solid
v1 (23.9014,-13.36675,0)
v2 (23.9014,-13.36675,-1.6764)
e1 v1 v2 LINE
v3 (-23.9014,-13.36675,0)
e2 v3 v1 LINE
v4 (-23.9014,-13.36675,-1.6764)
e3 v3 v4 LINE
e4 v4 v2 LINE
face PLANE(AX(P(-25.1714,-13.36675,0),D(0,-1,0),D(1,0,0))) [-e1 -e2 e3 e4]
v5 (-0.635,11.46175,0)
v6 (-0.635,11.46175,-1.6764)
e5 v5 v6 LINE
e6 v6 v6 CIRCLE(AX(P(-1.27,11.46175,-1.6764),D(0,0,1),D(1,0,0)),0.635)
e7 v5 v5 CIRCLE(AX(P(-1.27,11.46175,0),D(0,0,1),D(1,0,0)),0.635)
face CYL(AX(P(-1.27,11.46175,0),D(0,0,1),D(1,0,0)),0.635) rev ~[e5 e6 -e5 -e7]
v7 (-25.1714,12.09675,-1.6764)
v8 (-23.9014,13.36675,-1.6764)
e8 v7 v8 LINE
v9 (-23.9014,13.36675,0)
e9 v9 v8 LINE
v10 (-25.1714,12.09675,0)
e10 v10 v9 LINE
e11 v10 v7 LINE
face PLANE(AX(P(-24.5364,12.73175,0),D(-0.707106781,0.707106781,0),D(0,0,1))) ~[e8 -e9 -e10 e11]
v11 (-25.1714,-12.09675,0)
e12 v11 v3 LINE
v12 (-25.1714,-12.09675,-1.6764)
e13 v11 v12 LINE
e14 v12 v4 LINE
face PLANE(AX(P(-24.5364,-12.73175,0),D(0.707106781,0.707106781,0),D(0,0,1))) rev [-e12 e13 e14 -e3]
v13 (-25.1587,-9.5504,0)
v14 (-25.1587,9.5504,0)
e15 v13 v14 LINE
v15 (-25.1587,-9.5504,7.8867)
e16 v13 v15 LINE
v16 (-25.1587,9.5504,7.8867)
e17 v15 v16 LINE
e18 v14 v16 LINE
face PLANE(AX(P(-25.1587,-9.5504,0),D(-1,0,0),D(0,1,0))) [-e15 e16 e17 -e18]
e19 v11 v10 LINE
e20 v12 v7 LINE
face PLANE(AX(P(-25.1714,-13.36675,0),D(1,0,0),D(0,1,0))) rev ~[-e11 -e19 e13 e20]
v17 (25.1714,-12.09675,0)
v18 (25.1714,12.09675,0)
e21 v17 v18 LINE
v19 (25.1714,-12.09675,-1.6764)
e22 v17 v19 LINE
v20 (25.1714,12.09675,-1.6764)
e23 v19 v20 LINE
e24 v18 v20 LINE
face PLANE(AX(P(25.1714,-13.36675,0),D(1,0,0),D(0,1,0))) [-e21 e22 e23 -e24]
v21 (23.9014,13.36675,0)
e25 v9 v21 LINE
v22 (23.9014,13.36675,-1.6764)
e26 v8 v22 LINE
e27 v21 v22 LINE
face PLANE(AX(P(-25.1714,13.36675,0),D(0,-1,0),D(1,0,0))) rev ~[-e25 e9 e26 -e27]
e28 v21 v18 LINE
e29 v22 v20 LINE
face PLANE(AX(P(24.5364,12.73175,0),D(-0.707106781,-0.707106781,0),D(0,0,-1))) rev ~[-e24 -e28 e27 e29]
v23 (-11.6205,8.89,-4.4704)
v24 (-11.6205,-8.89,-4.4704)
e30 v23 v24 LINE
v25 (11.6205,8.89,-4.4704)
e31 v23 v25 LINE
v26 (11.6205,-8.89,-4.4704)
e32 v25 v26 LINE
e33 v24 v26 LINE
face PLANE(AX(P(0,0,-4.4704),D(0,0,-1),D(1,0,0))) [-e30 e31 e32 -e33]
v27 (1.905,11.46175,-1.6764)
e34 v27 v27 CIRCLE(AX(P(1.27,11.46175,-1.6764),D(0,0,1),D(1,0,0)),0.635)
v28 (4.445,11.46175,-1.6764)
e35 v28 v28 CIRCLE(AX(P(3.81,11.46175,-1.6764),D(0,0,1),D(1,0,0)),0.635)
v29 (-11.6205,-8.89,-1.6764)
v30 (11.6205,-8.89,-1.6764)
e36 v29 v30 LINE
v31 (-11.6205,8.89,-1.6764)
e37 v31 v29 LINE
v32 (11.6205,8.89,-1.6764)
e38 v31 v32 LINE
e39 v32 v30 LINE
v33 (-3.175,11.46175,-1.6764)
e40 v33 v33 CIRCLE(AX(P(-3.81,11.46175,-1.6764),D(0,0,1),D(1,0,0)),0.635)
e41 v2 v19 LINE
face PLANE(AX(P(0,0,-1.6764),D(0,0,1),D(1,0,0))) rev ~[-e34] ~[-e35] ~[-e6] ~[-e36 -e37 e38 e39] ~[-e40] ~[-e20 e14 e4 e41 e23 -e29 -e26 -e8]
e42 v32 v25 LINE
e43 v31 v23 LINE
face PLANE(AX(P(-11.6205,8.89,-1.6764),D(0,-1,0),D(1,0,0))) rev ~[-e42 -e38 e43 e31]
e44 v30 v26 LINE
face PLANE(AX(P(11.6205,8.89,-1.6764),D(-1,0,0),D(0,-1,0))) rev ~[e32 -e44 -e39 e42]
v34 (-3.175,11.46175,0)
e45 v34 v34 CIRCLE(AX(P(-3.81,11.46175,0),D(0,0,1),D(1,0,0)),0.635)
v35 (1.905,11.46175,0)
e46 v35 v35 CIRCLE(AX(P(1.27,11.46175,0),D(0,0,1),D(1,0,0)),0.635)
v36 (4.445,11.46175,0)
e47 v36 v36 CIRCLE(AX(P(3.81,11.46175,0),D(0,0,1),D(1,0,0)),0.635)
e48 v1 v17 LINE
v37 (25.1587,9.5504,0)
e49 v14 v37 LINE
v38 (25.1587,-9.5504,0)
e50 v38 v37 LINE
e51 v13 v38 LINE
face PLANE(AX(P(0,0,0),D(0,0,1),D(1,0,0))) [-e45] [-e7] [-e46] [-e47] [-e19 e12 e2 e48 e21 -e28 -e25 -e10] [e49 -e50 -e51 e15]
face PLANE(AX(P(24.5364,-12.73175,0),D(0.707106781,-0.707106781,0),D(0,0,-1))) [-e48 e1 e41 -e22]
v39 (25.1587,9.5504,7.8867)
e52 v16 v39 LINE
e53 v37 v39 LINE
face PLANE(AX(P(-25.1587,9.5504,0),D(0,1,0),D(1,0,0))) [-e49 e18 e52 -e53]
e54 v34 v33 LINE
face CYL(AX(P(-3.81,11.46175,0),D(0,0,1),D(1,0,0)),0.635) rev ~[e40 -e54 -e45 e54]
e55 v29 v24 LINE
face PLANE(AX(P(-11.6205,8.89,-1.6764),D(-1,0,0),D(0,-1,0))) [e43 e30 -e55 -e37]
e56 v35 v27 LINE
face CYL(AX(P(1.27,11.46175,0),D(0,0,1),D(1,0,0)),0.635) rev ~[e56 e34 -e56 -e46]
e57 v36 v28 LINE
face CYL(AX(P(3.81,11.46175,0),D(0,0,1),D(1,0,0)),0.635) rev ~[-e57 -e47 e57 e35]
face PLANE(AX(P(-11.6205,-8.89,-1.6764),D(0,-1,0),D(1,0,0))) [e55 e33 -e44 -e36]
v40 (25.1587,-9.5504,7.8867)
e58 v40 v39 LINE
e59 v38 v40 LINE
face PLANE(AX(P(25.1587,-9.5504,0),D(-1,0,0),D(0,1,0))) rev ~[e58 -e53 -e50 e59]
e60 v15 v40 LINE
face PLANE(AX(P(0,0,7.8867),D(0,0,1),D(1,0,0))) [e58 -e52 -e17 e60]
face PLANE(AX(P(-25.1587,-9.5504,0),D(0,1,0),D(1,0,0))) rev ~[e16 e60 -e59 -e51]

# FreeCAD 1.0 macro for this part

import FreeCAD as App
import Part
import Sketcher
Q = App.Units.Quantity


def edges_at(feature, points):
    """Names of the edges that pass closest to the given points."""
    edges = feature.Shape.Edges
    near = lambda p: min(range(len(edges)), key=lambda i: edges[i].distToShape(Part.Vertex(*p))[0])
    return sorted({f"Edge{near(p) + 1}" for p in points})


def add_polygon(sketch, points):
    """Adds a closed chain of lines whose ends are joined by coincident constraints."""
    first, n = sketch.GeometryCount, len(points)
    for a, b in zip(points, points[1:] + points[:1]):
        sketch.addGeometry(Part.LineSegment(App.Vector(*a, 0), App.Vector(*b, 0)), False)
    for i in range(n):
        sketch.addConstraint(Sketcher.Constraint("Coincident", first + i, 2, first + (i + 1) % n, 1))

doc = App.newDocument("Part")
body = doc.addObject("PartDesign::Body", "Body")

sketch1 = doc.addObject("Sketcher::SketchObject", "Sketch")
body.addObject(sketch1)
sketch1.AttachmentSupport = (doc.XY_Plane, [""])
sketch1.MapMode = "FlatFace"
add_polygon(sketch1, [(-25, 13), (-25, -13), (25, -13), (25, 13)])
sketch1.addConstraint(Sketcher.Constraint("Vertical", 0))
sketch1.addConstraint(Sketcher.Constraint("Horizontal", 1))
sketch1.addConstraint(Sketcher.Constraint("Vertical", 2))
sketch1.addConstraint(Sketcher.Constraint("Horizontal", 3))
sketch1.addConstraint(Sketcher.Constraint("Symmetric", 0, 2, 2, 2, -1, 1))
sketch1.addConstraint(Sketcher.Constraint("DistanceX", 1, 1, 1, 2, Q("1.982 in")))
sketch1.addConstraint(Sketcher.Constraint("DistanceY", 0, 2, 0, 1, Q("1.0525 in")))
pad1 = doc.addObject("PartDesign::Pad", "Pad")
body.addObject(pad1)
pad1.Profile = sketch1
pad1.Length = Q("0.066 in")
pad1.Reversed = True

sketch2 = doc.addObject("Sketcher::SketchObject", "Sketch001")
body.addObject(sketch2)
sketch2.AttachmentSupport = (doc.XY_Plane, [""])
sketch2.MapMode = "FlatFace"
add_polygon(sketch2, [(-25, 10), (-25, -10), (25, -10), (25, 10)])
sketch2.addConstraint(Sketcher.Constraint("Vertical", 0))
sketch2.addConstraint(Sketcher.Constraint("Horizontal", 1))
sketch2.addConstraint(Sketcher.Constraint("Vertical", 2))
sketch2.addConstraint(Sketcher.Constraint("Horizontal", 3))
sketch2.addConstraint(Sketcher.Constraint("Symmetric", 0, 2, 2, 2, -1, 1))
sketch2.addConstraint(Sketcher.Constraint("DistanceX", 1, 1, 1, 2, Q("1.981 in")))
sketch2.addConstraint(Sketcher.Constraint("DistanceY", 0, 2, 0, 1, Q("0.752 in")))
pad2 = doc.addObject("PartDesign::Pad", "Pad001")
body.addObject(pad2)
pad2.Profile = sketch2
pad2.Length = Q("0.3105 in")

sketch3 = doc.addObject("Sketcher::SketchObject", "Sketch002")
body.addObject(sketch3)
sketch3.AttachmentSupport = (doc.XY_Plane, [""])
sketch3.MapMode = "FlatFace"
sketch3.AttachmentOffset = App.Placement(App.Vector(0, 0, -0.066 * 25.4), App.Rotation())
add_polygon(sketch3, [(-12, -9), (-12, 9), (12, 9), (12, -9)])
sketch3.addConstraint(Sketcher.Constraint("Vertical", 0))
sketch3.addConstraint(Sketcher.Constraint("Horizontal", 1))
sketch3.addConstraint(Sketcher.Constraint("Vertical", 2))
sketch3.addConstraint(Sketcher.Constraint("Horizontal", 3))
sketch3.addConstraint(Sketcher.Constraint("Symmetric", 0, 2, 2, 2, -1, 1))
sketch3.addConstraint(Sketcher.Constraint("DistanceY", 0, 1, 0, 2, Q("0.7 in")))
sketch3.addConstraint(Sketcher.Constraint("DistanceX", 1, 1, 1, 2, Q("0.915 in")))
pad3 = doc.addObject("PartDesign::Pad", "Pad002")
body.addObject(pad3)
pad3.Profile = sketch3
pad3.Length = Q("0.11 in")
pad3.Reversed = True

sketch4 = doc.addObject("Sketcher::SketchObject", "Sketch003")
body.addObject(sketch4)
sketch4.AttachmentSupport = (doc.XY_Plane, [""])
sketch4.MapMode = "FlatFace"
sketch4.addGeometry(Part.Circle(App.Vector(-3.8, 11.5, 0), App.Vector(0, 0, 1), 0.6), False)
sketch4.addGeometry(Part.Circle(App.Vector(-1.3, 11.5, 0), App.Vector(0, 0, 1), 0.6), False)
sketch4.addGeometry(Part.Circle(App.Vector(1.3, 11.5, 0), App.Vector(0, 0, 1), 0.6), False)
sketch4.addGeometry(Part.Circle(App.Vector(3.8, 11.5, 0), App.Vector(0, 0, 1), 0.6), False)
sketch4.addConstraint(Sketcher.Constraint("Equal", 0, 1))
sketch4.addConstraint(Sketcher.Constraint("Equal", 1, 2))
sketch4.addConstraint(Sketcher.Constraint("Equal", 2, 3))
sketch4.addConstraint(Sketcher.Constraint("Symmetric", 1, 3, 2, 3, -2))
sketch4.addConstraint(Sketcher.Constraint("Symmetric", 0, 3, 3, 3, -2))
sketch4.addConstraint(Sketcher.Constraint("Horizontal", 0, 3, 1, 3))
sketch4.addConstraint(Sketcher.Constraint("Diameter", 0, Q("0.05 in")))
sketch4.addConstraint(Sketcher.Constraint("DistanceX", 0, 3, 1, 3, Q("0.1 in")))
sketch4.addConstraint(Sketcher.Constraint("DistanceX", 1, 3, 2, 3, Q("0.1 in")))
sketch4.addConstraint(Sketcher.Constraint("DistanceY", -1, 1, 0, 3, Q("11.46175 mm")))
pocket1 = doc.addObject("PartDesign::Pocket", "Pocket")
body.addObject(pocket1)
pocket1.Profile = sketch4
pocket1.Length = Q("1 in")
doc.recompute()

chamfer = doc.addObject("PartDesign::Chamfer", "Chamfer")
body.addObject(chamfer)
chamfer.Base = (pocket1, edges_at(pocket1, [
    (25.171, 13.367, -0.838),
    (25.171, -13.367, -0.838),
    (-25.171, -13.367, -0.838),
    (-25.171, 13.367, -0.838),
]))
chamfer.Size = Q("0.05 in")

doc.recompute()
